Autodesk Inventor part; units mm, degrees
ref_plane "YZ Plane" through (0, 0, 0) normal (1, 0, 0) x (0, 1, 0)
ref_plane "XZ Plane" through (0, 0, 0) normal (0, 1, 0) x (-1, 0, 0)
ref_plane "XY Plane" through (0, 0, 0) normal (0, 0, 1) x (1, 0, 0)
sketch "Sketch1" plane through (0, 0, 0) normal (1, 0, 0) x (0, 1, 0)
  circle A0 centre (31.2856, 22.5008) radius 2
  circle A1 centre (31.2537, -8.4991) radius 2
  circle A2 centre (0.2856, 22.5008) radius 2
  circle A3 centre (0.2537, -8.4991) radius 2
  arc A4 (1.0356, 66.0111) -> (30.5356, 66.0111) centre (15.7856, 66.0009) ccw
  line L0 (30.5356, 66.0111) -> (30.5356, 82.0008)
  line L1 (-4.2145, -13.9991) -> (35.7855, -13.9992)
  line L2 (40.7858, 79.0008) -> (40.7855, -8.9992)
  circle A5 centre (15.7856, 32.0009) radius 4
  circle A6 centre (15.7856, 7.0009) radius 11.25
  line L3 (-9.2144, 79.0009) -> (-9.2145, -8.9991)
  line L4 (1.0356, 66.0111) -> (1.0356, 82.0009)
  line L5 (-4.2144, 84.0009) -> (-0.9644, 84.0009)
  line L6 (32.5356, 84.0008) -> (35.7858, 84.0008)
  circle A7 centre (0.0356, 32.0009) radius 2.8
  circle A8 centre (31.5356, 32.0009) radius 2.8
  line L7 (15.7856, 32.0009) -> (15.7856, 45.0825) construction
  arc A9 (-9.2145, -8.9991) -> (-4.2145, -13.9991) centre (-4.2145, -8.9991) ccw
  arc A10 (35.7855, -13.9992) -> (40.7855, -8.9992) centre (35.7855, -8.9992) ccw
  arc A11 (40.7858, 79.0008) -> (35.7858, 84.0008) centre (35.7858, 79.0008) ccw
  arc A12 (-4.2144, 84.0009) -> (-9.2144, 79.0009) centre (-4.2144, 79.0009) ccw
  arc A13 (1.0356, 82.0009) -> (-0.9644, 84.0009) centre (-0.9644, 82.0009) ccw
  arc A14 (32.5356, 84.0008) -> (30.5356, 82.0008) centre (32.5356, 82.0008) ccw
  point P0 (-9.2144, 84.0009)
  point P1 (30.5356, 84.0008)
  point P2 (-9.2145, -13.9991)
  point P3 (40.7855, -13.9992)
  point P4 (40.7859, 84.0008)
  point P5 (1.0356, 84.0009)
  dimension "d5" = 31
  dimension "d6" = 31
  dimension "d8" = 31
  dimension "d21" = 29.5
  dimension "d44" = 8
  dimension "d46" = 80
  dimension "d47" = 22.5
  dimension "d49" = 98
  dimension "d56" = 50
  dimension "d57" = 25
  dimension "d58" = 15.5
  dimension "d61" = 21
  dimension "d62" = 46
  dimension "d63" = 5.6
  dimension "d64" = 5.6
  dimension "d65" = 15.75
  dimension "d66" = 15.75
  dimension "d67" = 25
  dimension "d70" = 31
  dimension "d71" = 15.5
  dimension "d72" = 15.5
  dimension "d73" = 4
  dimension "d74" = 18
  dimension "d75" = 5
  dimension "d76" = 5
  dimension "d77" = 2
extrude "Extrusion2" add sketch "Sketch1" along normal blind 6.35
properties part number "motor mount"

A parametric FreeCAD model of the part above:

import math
import FreeCAD as App
import Part
import Sketcher

V = App.Vector

doc = App.newDocument("Part")
body = doc.addObject("PartDesign::Body", "Body")

sketch1 = body.newObject("Sketcher::SketchObject", "Sketch")
sketch1.AttachmentSupport = (doc.getObject("YZ_Plane"), [""])
sketch1.MapMode = "FlatFace"
sketch1.addGeometry([
    Part.ArcOfCircle(Part.Circle(V(15.8, 66, 0), V(0, 0, 1), 14.8), math.radians(180), math.radians(360)),
    Part.LineSegment(V(1, 66, 0), V(1, 82, 0)),
    Part.ArcOfCircle(Part.Circle(V(-1, 82, 0), V(0, 0, 1), 2), math.radians(0), math.radians(90)),
    Part.LineSegment(V(-1, 84, 0), V(-4.2, 84, 0)),
    Part.ArcOfCircle(Part.Circle(V(-4.2, 79, 0), V(0, 0, 1), 5), math.radians(90), math.radians(180)),
    Part.LineSegment(V(-9.2, 79, 0), V(-9.2, -9, 0)),
    Part.ArcOfCircle(Part.Circle(V(-4.2, -9, 0), V(0, 0, 1), 5), math.radians(180), math.radians(270)),
    Part.LineSegment(V(-4.2, -14, 0), V(35.8, -14, 0)),
    Part.ArcOfCircle(Part.Circle(V(35.8, -9, 0), V(0, 0, 1), 5), math.radians(-90), math.radians(0)),
    Part.LineSegment(V(40.8, -9, 0), V(40.8, 79, 0)),
    Part.ArcOfCircle(Part.Circle(V(35.8, 79, 0), V(0, 0, 1), 5), math.radians(0), math.radians(90)),
    Part.LineSegment(V(35.8, 84, 0), V(32.5, 84, 0)),
    Part.ArcOfCircle(Part.Circle(V(32.5, 82, 0), V(0, 0, 1), 2), math.radians(90), math.radians(180)),
    Part.LineSegment(V(30.5, 82, 0), V(30.5, 66, 0)),
    Part.Circle(V(0.3, -8.5, 0), V(0, 0, 1), 2),
    Part.Circle(V(15.8, 7, 0), V(0, 0, 1), 11.2),
    Part.Circle(V(0.3, 22.5, 0), V(0, 0, 1), 2),
    Part.Circle(V(0, 32, 0), V(0, 0, 1), 2.8),
    Part.Circle(V(15.8, 32, 0), V(0, 0, 1), 4),
    Part.Circle(V(31.3, -8.5, 0), V(0, 0, 1), 2),
    Part.Circle(V(31.3, 22.5, 0), V(0, 0, 1), 2),
    Part.Circle(V(31.5, 32, 0), V(0, 0, 1), 2.8),
], False)
sketch1.addConstraint([
    Sketcher.Constraint("Coincident", 0, 1, 1, 1),
    Sketcher.Constraint("Tangent", 1, 2, 2, 1),
    Sketcher.Constraint("Tangent", 2, 2, 3, 1),
    Sketcher.Constraint("Tangent", 3, 2, 4, 1),
    Sketcher.Constraint("Tangent", 4, 2, 5, 1),
    Sketcher.Constraint("Tangent", 5, 2, 6, 1),
    Sketcher.Constraint("Tangent", 6, 2, 7, 1),
    Sketcher.Constraint("Tangent", 7, 2, 8, 1),
    Sketcher.Constraint("Tangent", 8, 2, 9, 1),
    Sketcher.Constraint("Tangent", 9, 2, 10, 1),
    Sketcher.Constraint("Tangent", 10, 2, 11, 1),
    Sketcher.Constraint("Tangent", 11, 2, 12, 1),
    Sketcher.Constraint("Tangent", 12, 2, 13, 1),
    Sketcher.Constraint("Coincident", 13, 2, 0, 2),
    Sketcher.Constraint("Vertical", 1),
    Sketcher.Constraint("Horizontal", 3),
    Sketcher.Constraint("Vertical", 5),
    Sketcher.Constraint("Horizontal", 7),
    Sketcher.Constraint("Horizontal", 11),
    Sketcher.Constraint("Vertical", 13),
    Sketcher.Constraint("Equal", 4, 6),
    Sketcher.Constraint("Equal", 6, 8),
    Sketcher.Constraint("Equal", 8, 10),
    Sketcher.Constraint("Equal", 2, 12),
    Sketcher.Constraint("Equal", 12, 14),
    Sketcher.Constraint("Equal", 14, 16),
    Sketcher.Constraint("Equal", 16, 19),
    Sketcher.Constraint("Equal", 19, 20),
    Sketcher.Constraint("Equal", 17, 21),
    Sketcher.Constraint("Horizontal", 4, 3, 10, 3),
    Sketcher.Constraint("Horizontal", 17, 3, 18, 3),
    Sketcher.Constraint("Horizontal", 14, 3, 19, 3),
    Sketcher.Constraint("Horizontal", 16, 3, 20, 3),
    Sketcher.Constraint("Horizontal", 18, 3, 21, 3),
    Sketcher.Constraint("Horizontal", 5, 2, 8, 2),
    Sketcher.Constraint("Horizontal", 0, 1, 13, 2),
    Sketcher.Constraint("Vertical", 0, 3, 15, 3),
    Sketcher.Constraint("Vertical", 15, 3, 18, 3),
    Sketcher.Constraint("Equal", 3, 11),
    Sketcher.Constraint("Diameter", 14, 4.0),
    Sketcher.Constraint("Diameter", 18, 8.0),
    Sketcher.Constraint("Radius", 4, 5.0),
    Sketcher.Constraint("Diameter", 15, 22.5),
    Sketcher.Constraint("Diameter", 17, 5.6),
    Sketcher.Constraint("Radius", 0, 14.75),
    Sketcher.Constraint("DistanceY", 14, 3, 16, 3, 31.0),
    Sketcher.Constraint("DistanceY", 15, 3, 17, 3, 25.0),
    Sketcher.Constraint("DistanceX", 14, 3, 19, 3, 31.0),
    Sketcher.Constraint("DistanceX", 16, 3, 20, 3, 31.0),
    Sketcher.Constraint("DistanceY", 0, 3, 2, 2, 18.0),
    Sketcher.Constraint("DistanceX", 5, 2, 15, 3, 25.0),
    Sketcher.Constraint("DistanceY", 6, 2, 15, 3, 21.0),
    Sketcher.Constraint("DistanceY", 14, 3, 15, 3, 15.5),
    Sketcher.Constraint("DistanceX", 16, 3, 15, 3, 15.5),
    Sketcher.Constraint("DistanceY", 5, 2, 5, 1, 88.0),
    Sketcher.Constraint("DistanceX", 17, 3, 15, 3, 15.75),
    Sketcher.Constraint("DistanceX", 18, 3, 21, 3, 15.75),
    Sketcher.Constraint("DistanceY", 1, 1, 1, 2, 15.9898),
    Sketcher.Constraint("DistanceY", -1, 1, 0, 3, 66.001),
    Sketcher.Constraint("DistanceX", 14, 3, 0, 3, 15.532),
    Sketcher.Constraint("DistanceX", -1, 1, 0, 3, 15.7856),
])
pad1 = body.newObject("PartDesign::Pad", "Pad")
pad1.Profile = sketch1
pad1.Length = 6.35

doc.recompute()
